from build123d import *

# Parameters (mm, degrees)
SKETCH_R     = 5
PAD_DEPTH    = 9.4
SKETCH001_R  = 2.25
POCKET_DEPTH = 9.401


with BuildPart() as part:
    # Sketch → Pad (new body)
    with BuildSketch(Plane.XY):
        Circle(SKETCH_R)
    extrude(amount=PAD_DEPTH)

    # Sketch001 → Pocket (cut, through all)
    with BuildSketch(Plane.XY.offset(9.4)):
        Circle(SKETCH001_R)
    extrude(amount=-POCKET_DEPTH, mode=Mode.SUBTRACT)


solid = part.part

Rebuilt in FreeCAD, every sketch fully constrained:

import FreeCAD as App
import Part
import Sketcher
from FreeCAD import Vector
Q = App.Units.Quantity

doc = App.newDocument("Part")
body = doc.addObject("PartDesign::Body", "Body")

# Sketch on XY plane
sketch1 = doc.addObject("Sketcher::SketchObject", "Sketch")
body.addObject(sketch1)
sketch1.AttachmentSupport = (doc.XY_Plane, [""])
sketch1.MapMode = "FlatFace"
sketch1.addGeometry(Part.Circle(Vector(0, 0, 0), Vector(0, 0, 1), 5), False)
sketch1.addConstraint([
    Sketcher.Constraint("Coincident", 0, 3, -1, 1),
    Sketcher.Constraint("Diameter", 0, Q("10 mm")),
])
pad1 = doc.addObject("PartDesign::Pad", "Pad")
body.addObject(pad1)
pad1.Profile = sketch1
pad1.Length = 9.4

# Sketch on XY plane
sketch2 = doc.addObject("Sketcher::SketchObject", "Sketch001")
body.addObject(sketch2)
sketch2.AttachmentSupport = (doc.XY_Plane, [""])
sketch2.MapMode = "FlatFace"
sketch2.AttachmentOffset = App.Placement(Vector(0, 0, 9.4), App.Rotation())
sketch2.addGeometry(Part.Circle(Vector(0, 0, 0), Vector(0, 0, 1), 2.2), False)
sketch2.addConstraint([
    Sketcher.Constraint("Coincident", 0, 3, -1, 1),
    Sketcher.Constraint("Diameter", 0, Q("4.5 mm")),
])
pocket1 = doc.addObject("PartDesign::Pocket", "Pocket")
body.addObject(pocket1)
pocket1.Profile = sketch2
pocket1.Type = "ThroughAll"

doc.recompute()
